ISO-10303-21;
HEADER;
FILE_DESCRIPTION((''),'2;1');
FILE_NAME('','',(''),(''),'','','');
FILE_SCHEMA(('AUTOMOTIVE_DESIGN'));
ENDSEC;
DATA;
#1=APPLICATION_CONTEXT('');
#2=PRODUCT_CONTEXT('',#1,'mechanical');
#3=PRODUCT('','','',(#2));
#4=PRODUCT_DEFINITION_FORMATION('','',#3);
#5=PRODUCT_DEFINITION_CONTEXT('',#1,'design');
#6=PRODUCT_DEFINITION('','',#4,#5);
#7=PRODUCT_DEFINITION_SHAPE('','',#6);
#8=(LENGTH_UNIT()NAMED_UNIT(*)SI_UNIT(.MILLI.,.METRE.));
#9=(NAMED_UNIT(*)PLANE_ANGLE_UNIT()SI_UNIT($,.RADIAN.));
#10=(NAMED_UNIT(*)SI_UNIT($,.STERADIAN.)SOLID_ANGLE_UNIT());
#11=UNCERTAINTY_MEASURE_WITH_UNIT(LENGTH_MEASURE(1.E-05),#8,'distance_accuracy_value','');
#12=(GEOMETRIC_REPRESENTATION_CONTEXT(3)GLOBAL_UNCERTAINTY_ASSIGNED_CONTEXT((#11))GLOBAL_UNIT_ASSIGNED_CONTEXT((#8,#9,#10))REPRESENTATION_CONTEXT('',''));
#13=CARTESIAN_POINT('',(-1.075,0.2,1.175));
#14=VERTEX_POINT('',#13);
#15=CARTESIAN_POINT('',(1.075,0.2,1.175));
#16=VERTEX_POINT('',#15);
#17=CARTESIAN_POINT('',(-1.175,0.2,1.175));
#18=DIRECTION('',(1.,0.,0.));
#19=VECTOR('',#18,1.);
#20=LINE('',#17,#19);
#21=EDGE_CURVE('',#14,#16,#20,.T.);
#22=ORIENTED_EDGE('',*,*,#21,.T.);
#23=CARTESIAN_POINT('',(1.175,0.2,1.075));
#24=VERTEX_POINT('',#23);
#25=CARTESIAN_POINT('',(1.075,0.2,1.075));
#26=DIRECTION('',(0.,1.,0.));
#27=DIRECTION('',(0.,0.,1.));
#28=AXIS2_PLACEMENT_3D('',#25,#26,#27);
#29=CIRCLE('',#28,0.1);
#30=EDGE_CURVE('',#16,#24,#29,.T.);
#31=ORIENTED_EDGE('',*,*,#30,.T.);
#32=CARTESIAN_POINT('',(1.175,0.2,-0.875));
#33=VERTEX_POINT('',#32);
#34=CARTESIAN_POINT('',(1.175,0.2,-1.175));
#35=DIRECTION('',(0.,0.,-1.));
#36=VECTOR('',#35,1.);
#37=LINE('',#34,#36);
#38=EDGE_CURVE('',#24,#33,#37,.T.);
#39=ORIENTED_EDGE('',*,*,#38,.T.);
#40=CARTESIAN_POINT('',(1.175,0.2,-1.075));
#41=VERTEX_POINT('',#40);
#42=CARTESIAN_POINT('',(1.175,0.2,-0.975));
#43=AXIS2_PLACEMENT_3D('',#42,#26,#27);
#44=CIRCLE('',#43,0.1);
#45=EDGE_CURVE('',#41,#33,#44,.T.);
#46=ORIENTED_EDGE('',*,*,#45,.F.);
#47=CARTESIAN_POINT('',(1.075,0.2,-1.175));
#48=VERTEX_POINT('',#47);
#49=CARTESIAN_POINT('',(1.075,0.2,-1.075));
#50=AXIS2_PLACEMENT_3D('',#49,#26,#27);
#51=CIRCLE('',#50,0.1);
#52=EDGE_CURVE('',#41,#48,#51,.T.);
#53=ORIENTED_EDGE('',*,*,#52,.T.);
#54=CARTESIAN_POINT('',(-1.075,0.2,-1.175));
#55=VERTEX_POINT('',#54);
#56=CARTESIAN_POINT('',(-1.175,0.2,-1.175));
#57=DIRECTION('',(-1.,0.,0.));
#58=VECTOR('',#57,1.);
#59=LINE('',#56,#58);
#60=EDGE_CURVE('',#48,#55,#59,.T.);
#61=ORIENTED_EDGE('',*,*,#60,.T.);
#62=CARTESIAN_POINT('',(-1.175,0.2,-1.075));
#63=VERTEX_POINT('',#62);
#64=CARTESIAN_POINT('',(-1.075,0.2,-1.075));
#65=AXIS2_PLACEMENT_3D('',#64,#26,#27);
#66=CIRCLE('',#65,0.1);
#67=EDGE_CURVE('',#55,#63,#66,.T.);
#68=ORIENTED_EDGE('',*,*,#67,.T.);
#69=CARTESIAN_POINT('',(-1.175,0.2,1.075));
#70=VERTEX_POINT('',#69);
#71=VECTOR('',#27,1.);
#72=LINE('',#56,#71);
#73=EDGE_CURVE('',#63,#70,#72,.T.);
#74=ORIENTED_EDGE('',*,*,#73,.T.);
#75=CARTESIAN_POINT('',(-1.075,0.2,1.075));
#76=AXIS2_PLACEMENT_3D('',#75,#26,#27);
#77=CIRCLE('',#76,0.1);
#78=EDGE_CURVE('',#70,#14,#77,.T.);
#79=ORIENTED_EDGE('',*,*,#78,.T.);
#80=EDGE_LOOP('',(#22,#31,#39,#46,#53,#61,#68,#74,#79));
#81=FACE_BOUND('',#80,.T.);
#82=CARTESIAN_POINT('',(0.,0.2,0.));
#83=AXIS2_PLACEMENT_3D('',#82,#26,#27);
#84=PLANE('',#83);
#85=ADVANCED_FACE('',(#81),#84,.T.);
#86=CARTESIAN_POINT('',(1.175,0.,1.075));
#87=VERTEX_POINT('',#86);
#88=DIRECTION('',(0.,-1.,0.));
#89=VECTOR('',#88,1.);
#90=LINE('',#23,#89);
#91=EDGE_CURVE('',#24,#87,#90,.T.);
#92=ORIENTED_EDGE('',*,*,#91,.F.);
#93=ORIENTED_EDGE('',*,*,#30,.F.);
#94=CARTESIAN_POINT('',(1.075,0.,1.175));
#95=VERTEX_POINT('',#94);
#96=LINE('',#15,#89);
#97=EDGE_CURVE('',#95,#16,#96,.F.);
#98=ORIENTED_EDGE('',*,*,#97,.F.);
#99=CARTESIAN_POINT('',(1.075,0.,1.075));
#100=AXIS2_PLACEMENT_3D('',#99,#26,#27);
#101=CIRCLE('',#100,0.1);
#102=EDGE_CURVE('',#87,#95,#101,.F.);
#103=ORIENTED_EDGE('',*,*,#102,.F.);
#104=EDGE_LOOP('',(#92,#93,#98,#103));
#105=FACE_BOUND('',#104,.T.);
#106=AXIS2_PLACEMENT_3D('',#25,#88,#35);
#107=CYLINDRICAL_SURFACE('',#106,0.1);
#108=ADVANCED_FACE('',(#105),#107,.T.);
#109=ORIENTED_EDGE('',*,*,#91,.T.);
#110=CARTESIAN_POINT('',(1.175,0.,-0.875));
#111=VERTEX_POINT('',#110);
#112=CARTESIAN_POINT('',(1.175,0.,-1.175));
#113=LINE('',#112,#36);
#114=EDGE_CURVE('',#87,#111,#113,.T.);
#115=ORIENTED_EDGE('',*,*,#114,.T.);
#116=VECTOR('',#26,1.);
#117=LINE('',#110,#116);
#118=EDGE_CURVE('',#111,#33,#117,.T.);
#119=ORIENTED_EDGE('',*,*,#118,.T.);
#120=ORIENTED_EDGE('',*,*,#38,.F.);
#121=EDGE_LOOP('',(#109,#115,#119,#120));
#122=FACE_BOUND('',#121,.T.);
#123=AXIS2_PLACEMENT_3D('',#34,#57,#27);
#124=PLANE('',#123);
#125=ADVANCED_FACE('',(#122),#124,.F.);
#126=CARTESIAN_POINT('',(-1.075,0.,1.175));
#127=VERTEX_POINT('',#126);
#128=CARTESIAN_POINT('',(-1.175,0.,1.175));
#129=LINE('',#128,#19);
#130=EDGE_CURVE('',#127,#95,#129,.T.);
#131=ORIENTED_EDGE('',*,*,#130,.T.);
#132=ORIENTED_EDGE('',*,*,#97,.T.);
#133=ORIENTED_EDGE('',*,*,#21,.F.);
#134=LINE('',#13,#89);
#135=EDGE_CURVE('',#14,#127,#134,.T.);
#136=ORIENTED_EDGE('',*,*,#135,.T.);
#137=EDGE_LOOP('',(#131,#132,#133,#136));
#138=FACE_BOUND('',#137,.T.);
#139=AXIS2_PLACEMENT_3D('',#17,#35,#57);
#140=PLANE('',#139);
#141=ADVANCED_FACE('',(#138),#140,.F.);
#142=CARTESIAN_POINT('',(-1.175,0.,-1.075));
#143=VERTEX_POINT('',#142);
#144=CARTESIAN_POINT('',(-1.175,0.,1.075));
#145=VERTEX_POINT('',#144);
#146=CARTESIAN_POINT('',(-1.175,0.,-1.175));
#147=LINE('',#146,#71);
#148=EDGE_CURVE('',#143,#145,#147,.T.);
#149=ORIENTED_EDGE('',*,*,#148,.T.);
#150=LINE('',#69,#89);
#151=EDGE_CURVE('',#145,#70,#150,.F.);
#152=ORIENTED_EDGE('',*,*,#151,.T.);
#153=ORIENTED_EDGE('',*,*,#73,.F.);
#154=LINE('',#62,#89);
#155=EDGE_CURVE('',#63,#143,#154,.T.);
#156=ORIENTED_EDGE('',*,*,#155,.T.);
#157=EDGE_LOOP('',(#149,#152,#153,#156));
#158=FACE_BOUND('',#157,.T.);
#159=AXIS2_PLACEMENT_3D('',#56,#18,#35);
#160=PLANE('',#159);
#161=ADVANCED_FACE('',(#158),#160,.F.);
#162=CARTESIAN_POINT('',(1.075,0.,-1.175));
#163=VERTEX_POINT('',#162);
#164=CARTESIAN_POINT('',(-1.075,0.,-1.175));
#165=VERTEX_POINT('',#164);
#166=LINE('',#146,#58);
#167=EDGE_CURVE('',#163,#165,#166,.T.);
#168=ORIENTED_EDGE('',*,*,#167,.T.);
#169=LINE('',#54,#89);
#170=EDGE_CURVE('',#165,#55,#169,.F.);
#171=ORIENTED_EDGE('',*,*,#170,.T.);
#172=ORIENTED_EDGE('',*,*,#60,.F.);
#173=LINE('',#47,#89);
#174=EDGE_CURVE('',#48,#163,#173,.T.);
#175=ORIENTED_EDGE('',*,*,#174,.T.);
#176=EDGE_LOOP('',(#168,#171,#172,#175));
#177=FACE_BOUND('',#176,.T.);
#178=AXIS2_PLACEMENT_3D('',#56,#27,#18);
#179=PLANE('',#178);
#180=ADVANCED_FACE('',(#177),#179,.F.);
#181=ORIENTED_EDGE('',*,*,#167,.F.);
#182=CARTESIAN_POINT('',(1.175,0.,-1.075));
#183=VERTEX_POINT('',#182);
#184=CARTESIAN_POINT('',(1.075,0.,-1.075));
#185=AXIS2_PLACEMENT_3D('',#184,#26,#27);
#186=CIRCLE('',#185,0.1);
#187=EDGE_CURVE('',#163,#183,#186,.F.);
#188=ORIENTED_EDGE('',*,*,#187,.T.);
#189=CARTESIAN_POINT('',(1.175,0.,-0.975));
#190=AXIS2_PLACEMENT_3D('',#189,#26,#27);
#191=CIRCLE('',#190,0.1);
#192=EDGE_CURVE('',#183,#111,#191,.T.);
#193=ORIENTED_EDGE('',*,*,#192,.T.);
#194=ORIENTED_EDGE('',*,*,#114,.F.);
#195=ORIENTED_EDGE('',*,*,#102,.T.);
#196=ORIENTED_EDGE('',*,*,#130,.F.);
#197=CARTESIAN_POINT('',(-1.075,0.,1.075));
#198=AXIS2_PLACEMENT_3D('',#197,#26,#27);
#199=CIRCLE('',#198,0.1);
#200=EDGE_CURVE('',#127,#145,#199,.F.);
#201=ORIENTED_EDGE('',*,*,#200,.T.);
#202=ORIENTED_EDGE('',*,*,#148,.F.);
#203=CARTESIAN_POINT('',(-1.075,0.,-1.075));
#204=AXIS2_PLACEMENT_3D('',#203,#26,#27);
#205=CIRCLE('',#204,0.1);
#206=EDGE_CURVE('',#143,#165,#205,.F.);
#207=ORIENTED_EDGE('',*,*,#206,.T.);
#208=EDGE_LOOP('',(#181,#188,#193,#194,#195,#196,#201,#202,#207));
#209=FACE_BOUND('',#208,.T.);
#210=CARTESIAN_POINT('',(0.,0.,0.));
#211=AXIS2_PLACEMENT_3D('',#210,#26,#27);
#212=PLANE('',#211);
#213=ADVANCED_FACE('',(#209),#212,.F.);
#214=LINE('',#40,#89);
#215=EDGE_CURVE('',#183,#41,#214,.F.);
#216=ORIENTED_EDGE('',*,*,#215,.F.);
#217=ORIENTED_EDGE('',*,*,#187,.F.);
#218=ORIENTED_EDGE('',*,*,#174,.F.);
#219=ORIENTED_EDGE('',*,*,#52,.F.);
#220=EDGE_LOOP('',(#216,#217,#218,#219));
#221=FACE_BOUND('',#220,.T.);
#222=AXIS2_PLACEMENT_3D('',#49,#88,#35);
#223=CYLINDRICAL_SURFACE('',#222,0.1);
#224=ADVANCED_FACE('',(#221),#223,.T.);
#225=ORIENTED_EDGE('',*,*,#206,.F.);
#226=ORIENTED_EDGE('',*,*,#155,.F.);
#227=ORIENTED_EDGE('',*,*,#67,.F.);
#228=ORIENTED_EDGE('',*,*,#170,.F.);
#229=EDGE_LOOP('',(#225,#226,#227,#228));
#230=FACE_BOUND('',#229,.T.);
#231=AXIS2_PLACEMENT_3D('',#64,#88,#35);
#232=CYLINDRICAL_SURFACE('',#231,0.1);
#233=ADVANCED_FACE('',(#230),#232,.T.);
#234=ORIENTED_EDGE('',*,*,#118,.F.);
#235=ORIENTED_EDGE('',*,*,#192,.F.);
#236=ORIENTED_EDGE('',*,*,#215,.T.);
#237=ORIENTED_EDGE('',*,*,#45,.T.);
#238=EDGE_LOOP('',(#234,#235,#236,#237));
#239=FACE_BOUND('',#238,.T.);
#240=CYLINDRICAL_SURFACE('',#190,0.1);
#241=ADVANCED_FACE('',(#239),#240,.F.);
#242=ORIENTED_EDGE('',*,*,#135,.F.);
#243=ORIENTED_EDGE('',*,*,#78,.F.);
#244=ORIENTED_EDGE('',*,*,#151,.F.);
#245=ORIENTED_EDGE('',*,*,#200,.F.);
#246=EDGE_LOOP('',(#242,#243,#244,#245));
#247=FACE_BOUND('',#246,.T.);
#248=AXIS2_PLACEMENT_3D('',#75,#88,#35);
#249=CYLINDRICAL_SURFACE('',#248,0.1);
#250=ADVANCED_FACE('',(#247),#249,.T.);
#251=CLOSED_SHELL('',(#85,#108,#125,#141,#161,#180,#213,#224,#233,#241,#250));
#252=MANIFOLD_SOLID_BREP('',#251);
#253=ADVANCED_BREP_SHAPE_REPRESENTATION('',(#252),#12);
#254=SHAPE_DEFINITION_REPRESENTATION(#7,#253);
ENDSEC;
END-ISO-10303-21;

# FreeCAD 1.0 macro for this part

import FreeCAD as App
import Part
import Sketcher

V = App.Vector
Q = App.Units.Quantity


def edges_at(feature, points):
    """Names of the edges that pass closest to the given points."""
    edges = feature.Shape.Edges
    near = lambda p: min(range(len(edges)), key=lambda i: edges[i].distToShape(Part.Vertex(*p))[0])
    return sorted({f"Edge{near(p) + 1}" for p in points})


def add_polygon(sketch, points):
    """Adds a closed chain of lines whose ends are joined by coincident constraints."""
    first, n = sketch.GeometryCount, len(points)
    for a, b in zip(points, points[1:] + points[:1]):
        sketch.addGeometry(Part.LineSegment(App.Vector(*a, 0), App.Vector(*b, 0)), False)
    for i in range(n):
        sketch.addConstraint(Sketcher.Constraint("Coincident", first + i, 2, first + (i + 1) % n, 1))

doc = App.newDocument("Part")
body = doc.addObject("PartDesign::Body", "Body")

# Sketch on XZ plane
sketch1 = body.newObject("Sketcher::SketchObject", "Sketch")
sketch1.AttachmentSupport = (doc.getObject("XZ_Plane"), [""])
sketch1.MapMode = "FlatFace"
add_polygon(sketch1, [(-1.2, -1.2), (-1.2, 1.2), (1.2, 1.2), (1.2, -1.2)])  # lines 0-3
sketch1.addConstraint(Sketcher.Constraint("Vertical", 0))
sketch1.addConstraint(Sketcher.Constraint("Horizontal", 1))
sketch1.addConstraint(Sketcher.Constraint("Vertical", 2))
sketch1.addConstraint(Sketcher.Constraint("Horizontal", 3))
sketch1.addConstraint(Sketcher.Constraint("Symmetric", 0, 2, 2, 2, -1, 1))
sketch1.addConstraint(Sketcher.Constraint("Equal", 3, 0))
sketch1.addConstraint(Sketcher.Constraint("DistanceX", 1, 1, 1, 2, Q("2.35 mm")))
pad1 = body.newObject("PartDesign::Pad", "Pad")
pad1.Profile = sketch1
pad1.Length = 0.2
pad1.Reversed = True
doc.recompute()

fillet = body.newObject("PartDesign::Fillet", "Fillet")
fillet.Base = (pad1, edges_at(pad1, [
    (1.175, 0.1, 1.175),
    (-1.175, 0.1, 1.175),
    (-1.175, 0.1, -1.175),
    (1.175, 0.1, -1.175),
]))
fillet.Radius = 0.1

# Sketch on XZ plane
sketch2 = body.newObject("Sketcher::SketchObject", "Sketch001")
sketch2.AttachmentSupport = (doc.getObject("XZ_Plane"), [""])
sketch2.MapMode = "FlatFace"
sketch2.AttachmentOffset = App.Placement(V(0, 0, -0.2), App.Rotation())
sketch2.addGeometry(Part.Circle(V(1.18, -0.97, 0), V(0, 0, 1), 0.1), False)
sketch2.addConstraint(Sketcher.Constraint("Diameter", 0, Q("0.2 mm")))
sketch2.addConstraint(Sketcher.Constraint("DistanceX", -1, 1, 0, 3, Q("1.175 mm")))
sketch2.addConstraint(Sketcher.Constraint("DistanceY", 0, 3, -1, 1, Q("0.975 mm")))
pocket1 = body.newObject("PartDesign::Pocket", "Pocket")
pocket1.Profile = sketch2
pocket1.Type = "ThroughAll"
pocket1.Reversed = True

doc.recompute()
